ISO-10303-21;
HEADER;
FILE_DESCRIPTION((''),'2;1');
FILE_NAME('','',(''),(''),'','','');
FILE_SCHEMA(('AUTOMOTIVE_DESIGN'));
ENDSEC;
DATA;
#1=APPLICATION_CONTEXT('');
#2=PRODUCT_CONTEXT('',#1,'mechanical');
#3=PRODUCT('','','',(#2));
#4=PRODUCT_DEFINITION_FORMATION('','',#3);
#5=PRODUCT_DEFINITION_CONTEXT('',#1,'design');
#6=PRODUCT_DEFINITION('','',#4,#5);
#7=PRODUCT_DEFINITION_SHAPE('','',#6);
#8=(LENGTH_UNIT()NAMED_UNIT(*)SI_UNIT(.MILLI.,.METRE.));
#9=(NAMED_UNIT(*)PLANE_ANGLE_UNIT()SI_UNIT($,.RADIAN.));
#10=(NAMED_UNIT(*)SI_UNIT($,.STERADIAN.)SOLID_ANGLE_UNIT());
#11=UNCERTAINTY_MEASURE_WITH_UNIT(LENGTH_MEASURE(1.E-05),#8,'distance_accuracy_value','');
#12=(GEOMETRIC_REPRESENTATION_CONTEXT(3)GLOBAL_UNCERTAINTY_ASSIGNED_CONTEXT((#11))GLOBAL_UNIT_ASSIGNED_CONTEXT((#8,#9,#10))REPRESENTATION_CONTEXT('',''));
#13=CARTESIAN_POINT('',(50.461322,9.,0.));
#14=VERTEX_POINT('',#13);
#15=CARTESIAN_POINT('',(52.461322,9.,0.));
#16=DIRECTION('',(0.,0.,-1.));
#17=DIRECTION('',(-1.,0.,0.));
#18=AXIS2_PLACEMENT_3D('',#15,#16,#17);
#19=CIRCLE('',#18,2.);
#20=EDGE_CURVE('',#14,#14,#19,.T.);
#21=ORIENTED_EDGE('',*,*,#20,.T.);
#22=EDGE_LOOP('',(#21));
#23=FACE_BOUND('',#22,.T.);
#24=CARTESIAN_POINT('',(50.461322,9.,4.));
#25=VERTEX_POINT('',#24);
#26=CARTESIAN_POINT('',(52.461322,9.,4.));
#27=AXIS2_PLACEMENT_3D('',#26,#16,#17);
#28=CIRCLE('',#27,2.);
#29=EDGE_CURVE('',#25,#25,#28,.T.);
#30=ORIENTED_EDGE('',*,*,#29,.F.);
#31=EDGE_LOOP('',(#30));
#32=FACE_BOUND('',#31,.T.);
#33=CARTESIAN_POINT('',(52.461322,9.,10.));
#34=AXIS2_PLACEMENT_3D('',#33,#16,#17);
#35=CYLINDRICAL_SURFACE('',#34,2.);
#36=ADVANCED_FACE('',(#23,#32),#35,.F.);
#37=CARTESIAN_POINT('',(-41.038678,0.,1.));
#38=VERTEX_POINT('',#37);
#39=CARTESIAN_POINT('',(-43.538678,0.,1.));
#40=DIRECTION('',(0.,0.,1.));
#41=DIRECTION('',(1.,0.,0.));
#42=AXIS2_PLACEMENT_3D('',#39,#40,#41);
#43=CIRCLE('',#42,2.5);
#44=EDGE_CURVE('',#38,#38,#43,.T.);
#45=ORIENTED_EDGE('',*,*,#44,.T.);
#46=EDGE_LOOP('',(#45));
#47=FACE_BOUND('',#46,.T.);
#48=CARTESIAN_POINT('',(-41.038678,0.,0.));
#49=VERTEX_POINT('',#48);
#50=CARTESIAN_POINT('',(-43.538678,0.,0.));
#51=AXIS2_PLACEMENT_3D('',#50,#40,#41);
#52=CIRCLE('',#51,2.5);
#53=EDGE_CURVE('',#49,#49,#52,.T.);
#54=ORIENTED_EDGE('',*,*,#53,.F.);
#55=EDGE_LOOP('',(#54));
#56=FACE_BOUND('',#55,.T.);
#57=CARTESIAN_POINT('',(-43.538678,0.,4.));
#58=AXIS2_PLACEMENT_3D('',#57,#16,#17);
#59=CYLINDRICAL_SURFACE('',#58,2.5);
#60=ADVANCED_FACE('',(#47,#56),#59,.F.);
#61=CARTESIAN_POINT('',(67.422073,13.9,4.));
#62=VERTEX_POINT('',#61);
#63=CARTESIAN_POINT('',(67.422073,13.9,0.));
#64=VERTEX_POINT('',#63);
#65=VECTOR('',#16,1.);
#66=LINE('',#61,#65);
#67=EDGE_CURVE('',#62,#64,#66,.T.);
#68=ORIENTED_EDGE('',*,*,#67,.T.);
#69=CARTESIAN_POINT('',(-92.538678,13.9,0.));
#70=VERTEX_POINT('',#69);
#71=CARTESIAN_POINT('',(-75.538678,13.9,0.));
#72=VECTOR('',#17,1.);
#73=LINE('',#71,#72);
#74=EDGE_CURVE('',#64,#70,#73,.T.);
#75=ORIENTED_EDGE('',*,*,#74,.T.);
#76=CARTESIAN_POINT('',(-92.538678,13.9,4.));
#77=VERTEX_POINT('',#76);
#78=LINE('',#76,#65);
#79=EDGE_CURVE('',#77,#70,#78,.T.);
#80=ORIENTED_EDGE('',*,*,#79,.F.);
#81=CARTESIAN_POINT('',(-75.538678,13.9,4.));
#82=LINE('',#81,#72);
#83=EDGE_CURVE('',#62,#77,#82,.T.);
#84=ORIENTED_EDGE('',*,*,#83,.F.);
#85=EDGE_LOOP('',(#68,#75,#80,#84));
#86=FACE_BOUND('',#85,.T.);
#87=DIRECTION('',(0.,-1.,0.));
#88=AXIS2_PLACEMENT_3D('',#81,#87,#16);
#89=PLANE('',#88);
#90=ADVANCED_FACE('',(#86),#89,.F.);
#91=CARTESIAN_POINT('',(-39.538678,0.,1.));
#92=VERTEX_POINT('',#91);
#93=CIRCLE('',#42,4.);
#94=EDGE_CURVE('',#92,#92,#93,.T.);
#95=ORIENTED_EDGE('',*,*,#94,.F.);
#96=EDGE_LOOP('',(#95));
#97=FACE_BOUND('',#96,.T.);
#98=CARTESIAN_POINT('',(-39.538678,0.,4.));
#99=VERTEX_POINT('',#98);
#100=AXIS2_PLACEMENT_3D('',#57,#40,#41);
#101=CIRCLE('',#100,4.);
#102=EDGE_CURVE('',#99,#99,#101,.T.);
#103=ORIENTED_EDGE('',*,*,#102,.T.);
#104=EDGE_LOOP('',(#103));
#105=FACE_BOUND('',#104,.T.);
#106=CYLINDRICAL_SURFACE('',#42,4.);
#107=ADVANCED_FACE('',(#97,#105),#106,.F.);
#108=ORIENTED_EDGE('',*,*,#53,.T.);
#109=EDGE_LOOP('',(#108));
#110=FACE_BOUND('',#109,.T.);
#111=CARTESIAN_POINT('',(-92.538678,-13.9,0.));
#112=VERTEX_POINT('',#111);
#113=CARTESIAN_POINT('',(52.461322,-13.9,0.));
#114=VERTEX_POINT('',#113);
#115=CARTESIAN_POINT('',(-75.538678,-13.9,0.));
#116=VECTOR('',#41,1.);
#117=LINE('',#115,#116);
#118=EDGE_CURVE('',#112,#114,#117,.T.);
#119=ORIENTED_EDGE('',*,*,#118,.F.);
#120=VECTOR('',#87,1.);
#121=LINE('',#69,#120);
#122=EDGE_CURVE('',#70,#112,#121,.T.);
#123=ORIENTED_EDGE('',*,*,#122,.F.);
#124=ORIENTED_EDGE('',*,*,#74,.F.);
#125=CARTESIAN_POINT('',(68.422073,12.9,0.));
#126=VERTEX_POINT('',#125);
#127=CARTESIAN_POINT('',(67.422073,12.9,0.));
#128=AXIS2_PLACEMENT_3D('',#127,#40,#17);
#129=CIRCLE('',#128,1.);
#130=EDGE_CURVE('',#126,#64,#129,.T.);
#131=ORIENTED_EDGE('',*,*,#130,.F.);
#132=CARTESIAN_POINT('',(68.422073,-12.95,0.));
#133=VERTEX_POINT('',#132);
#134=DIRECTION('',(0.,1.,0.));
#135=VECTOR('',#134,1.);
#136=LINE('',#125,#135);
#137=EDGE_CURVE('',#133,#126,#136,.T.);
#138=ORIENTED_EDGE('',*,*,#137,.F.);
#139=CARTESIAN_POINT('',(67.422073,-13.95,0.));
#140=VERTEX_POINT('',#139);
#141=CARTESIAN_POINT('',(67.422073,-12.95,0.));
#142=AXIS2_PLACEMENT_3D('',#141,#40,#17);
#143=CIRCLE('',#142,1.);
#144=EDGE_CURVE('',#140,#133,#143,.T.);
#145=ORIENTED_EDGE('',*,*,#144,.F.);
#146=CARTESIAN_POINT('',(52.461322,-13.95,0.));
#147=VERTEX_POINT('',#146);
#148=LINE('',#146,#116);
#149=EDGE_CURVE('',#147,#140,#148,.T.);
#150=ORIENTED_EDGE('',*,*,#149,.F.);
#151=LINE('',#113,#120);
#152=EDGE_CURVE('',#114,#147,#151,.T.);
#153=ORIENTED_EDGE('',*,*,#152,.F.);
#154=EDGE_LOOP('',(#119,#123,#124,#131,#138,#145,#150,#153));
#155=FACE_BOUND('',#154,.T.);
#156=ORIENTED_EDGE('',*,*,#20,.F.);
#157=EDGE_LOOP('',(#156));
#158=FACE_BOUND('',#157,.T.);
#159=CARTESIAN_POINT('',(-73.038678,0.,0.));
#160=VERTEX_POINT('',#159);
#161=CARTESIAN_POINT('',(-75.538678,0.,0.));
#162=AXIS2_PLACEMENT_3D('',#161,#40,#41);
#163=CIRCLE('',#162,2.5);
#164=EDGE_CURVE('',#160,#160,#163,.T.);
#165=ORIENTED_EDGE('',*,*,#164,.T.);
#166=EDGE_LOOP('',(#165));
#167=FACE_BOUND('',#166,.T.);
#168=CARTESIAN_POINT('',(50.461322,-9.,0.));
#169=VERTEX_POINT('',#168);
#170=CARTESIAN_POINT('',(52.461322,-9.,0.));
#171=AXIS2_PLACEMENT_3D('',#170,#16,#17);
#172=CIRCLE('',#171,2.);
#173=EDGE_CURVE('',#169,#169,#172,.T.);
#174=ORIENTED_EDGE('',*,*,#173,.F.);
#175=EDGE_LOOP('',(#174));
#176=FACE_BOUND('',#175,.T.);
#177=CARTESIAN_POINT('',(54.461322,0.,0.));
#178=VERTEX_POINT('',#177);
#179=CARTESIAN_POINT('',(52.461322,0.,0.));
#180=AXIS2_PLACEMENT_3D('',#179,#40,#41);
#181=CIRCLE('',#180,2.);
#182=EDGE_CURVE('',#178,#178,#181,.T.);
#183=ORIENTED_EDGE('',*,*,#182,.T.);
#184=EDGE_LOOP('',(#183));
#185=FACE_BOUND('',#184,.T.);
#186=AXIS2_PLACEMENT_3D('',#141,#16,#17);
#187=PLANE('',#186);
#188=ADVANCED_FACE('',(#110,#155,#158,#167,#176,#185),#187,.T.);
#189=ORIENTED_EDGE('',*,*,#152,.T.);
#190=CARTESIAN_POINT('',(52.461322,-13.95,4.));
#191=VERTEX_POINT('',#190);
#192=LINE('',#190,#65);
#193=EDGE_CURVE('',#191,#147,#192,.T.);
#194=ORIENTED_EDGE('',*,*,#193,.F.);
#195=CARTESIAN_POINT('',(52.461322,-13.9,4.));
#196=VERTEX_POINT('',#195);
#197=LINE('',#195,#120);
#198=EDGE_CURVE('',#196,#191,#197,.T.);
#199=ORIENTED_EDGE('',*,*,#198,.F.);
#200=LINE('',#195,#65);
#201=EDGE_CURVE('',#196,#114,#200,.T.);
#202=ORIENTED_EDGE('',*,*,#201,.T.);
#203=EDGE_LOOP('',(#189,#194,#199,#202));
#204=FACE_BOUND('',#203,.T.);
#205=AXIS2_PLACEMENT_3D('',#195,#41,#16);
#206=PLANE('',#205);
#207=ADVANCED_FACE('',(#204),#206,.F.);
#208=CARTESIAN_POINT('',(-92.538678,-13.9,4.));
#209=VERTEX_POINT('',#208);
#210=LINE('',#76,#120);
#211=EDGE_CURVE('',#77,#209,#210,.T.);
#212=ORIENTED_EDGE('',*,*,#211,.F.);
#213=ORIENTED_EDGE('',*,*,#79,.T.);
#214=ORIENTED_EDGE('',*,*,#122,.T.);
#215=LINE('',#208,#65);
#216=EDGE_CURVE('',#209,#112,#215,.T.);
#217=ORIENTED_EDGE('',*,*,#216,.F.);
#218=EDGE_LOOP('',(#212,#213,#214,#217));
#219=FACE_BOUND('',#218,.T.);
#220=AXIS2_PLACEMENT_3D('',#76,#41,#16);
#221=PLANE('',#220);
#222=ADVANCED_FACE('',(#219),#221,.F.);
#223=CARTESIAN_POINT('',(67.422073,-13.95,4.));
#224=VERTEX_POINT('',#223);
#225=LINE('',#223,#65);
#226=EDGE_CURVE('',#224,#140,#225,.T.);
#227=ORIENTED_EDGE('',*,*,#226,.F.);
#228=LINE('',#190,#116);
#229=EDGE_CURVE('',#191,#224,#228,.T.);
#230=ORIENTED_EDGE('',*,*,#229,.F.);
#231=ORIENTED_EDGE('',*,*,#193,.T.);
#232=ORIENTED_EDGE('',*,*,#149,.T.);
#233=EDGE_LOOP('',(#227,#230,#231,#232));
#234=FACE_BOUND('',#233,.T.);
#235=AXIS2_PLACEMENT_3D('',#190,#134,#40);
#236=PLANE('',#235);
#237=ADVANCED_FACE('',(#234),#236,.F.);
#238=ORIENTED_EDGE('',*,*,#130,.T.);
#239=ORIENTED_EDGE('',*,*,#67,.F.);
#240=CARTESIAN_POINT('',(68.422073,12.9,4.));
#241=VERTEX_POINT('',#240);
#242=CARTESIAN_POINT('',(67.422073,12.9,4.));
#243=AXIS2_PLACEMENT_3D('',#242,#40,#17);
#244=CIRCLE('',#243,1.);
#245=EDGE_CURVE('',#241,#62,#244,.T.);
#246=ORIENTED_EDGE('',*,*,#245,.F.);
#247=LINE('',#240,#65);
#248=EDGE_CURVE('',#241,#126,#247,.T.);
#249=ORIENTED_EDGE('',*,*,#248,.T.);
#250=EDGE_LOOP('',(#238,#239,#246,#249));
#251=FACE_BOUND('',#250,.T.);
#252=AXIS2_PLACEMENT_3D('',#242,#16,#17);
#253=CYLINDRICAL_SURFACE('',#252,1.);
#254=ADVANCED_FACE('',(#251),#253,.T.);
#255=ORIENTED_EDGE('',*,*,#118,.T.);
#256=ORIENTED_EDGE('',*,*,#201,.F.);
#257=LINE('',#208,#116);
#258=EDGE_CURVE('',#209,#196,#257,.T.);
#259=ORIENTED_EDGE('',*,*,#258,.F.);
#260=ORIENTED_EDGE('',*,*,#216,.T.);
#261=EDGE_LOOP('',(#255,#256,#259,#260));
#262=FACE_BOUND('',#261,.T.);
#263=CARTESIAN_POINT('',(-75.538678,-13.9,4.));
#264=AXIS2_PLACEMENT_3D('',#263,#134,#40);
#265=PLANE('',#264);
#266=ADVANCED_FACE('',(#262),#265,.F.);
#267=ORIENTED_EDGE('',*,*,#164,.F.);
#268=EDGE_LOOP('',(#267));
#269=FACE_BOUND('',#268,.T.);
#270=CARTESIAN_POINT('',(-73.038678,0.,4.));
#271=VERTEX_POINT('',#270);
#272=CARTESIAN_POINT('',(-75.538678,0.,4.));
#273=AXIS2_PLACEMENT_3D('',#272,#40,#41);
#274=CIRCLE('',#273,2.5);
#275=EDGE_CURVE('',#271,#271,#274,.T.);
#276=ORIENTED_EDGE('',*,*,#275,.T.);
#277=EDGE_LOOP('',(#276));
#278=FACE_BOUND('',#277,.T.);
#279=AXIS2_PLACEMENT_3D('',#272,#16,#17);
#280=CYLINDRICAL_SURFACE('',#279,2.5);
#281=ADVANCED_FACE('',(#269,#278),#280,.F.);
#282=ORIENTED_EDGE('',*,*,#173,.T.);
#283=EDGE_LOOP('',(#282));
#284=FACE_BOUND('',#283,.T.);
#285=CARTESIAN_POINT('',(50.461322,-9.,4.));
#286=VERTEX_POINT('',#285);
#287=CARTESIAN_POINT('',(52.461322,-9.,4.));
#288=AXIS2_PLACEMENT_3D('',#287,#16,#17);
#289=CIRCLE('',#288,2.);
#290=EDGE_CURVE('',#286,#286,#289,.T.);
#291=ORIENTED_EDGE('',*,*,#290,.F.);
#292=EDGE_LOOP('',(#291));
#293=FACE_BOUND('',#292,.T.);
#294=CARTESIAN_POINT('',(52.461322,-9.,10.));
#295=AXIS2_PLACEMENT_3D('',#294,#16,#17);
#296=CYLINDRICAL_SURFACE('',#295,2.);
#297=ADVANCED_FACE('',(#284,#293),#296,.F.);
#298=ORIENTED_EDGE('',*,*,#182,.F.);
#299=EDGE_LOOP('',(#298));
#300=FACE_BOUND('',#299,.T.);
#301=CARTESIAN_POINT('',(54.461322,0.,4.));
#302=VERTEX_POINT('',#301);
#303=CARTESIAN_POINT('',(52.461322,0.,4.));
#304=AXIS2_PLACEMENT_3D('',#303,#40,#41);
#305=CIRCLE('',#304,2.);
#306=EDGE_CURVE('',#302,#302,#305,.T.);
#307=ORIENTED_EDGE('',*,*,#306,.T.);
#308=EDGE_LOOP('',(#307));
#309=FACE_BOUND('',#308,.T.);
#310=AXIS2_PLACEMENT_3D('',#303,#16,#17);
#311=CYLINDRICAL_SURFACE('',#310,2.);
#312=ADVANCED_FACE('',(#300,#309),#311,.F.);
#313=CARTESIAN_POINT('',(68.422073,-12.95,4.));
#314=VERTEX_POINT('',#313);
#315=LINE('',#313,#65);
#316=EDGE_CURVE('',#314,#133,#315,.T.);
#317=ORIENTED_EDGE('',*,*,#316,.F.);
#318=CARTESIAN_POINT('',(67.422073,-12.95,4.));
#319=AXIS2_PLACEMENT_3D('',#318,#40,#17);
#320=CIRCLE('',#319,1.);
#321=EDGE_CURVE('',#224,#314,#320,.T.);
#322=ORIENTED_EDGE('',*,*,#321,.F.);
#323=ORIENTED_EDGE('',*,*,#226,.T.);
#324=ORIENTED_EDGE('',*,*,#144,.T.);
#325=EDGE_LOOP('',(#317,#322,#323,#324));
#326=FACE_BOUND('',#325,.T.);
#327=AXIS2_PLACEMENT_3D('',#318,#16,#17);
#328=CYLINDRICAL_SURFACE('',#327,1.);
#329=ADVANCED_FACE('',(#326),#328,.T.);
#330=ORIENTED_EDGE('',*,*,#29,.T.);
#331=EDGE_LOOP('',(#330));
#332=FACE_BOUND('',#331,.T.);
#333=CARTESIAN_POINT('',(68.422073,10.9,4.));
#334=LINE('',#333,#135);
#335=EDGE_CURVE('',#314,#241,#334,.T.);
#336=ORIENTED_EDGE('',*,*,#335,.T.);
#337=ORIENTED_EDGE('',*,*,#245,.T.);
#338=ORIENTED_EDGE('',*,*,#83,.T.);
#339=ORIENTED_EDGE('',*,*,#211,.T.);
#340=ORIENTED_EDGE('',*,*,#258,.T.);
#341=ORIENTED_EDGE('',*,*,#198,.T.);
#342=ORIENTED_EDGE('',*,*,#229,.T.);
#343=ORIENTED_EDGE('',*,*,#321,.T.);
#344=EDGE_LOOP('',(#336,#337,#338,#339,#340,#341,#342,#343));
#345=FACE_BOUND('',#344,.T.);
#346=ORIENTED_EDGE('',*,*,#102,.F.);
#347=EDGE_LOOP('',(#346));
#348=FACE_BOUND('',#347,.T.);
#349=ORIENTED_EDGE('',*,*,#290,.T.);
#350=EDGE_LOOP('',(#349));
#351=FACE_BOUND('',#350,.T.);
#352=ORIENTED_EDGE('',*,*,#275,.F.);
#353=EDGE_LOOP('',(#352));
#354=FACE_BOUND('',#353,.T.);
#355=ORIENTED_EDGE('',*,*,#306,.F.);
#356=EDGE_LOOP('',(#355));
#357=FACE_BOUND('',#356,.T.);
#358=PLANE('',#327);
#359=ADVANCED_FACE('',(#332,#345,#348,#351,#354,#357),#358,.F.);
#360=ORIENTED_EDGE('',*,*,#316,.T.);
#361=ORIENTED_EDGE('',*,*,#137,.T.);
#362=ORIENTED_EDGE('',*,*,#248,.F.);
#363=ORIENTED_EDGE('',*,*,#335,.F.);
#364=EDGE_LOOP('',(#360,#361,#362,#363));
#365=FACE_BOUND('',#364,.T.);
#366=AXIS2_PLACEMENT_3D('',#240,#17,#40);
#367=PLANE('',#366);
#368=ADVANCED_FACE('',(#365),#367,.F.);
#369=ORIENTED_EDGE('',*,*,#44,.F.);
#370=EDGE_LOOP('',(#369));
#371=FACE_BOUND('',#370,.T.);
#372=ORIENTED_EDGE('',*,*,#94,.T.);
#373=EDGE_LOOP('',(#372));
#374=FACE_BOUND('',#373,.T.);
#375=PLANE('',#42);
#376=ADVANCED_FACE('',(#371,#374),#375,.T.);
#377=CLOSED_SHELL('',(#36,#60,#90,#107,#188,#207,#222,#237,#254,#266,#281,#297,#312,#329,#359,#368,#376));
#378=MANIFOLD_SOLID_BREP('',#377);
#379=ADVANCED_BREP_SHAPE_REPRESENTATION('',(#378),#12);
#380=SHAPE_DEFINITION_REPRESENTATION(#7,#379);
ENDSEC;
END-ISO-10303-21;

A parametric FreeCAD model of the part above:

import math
import FreeCAD as App
import Part
import Sketcher
from FreeCAD import Vector

doc = App.newDocument("Part")
body = doc.addObject("PartDesign::Body", "Body")

sketch1 = body.newObject("Sketcher::SketchObject", "Sketch")
sketch1.AttachmentSupport = (doc.getObject("XY_Plane"), [""])
sketch1.MapMode = "FlatFace"
sketch1.addGeometry(Part.ArcOfCircle(Part.Circle(Vector(67.422, 12.9, 0), Vector(0, 0, 1), 1), math.radians(0), math.radians(90)), False)
sketch1.addGeometry(Part.LineSegment(Vector(67.422, 13.9, 0), Vector(-92.539, 13.9, 0)), False)
sketch1.addGeometry(Part.LineSegment(Vector(-92.539, 13.9, 0), Vector(-92.539, -13.9, 0)), False)
sketch1.addGeometry(Part.LineSegment(Vector(-92.539, -13.9, 0), Vector(52.461, -13.9, 0)), False)
sketch1.addGeometry(Part.LineSegment(Vector(52.461, -13.9, 0), Vector(52.461, -13.95, 0)), False)
sketch1.addGeometry(Part.LineSegment(Vector(52.461, -13.95, 0), Vector(67.422, -13.95, 0)), False)
sketch1.addGeometry(Part.ArcOfCircle(Part.Circle(Vector(67.422, -12.95, 0), Vector(0, 0, 1), 1), math.radians(-90), math.radians(0)), False)
sketch1.addGeometry(Part.LineSegment(Vector(68.422, -12.95, 0), Vector(68.422, 12.9, 0)), False)
sketch1.addGeometry(Part.Circle(Vector(52.461, 0, 0), Vector(0, 0, 1), 2), False)
sketch1.addGeometry(Part.Circle(Vector(-43.539, 0, 0), Vector(0, 0, 1), 2.5), False)
sketch1.addGeometry(Part.Circle(Vector(-75.539, 0, 0), Vector(0, 0, 1), 2.5), False)
sketch1.addConstraint(Sketcher.Constraint("Tangent", 0, 2, 1, 1))
sketch1.addConstraint(Sketcher.Constraint("Coincident", 1, 2, 2, 1))
sketch1.addConstraint(Sketcher.Constraint("Coincident", 2, 2, 3, 1))
sketch1.addConstraint(Sketcher.Constraint("Coincident", 3, 2, 4, 1))
sketch1.addConstraint(Sketcher.Constraint("Coincident", 4, 2, 5, 1))
sketch1.addConstraint(Sketcher.Constraint("Tangent", 5, 2, 6, 1))
sketch1.addConstraint(Sketcher.Constraint("Tangent", 6, 2, 7, 1))
sketch1.addConstraint(Sketcher.Constraint("Tangent", 7, 2, 0, 1))
sketch1.addConstraint(Sketcher.Constraint("Horizontal", 1))
sketch1.addConstraint(Sketcher.Constraint("Vertical", 2))
sketch1.addConstraint(Sketcher.Constraint("Horizontal", 3))
sketch1.addConstraint(Sketcher.Constraint("Vertical", 4))
sketch1.addConstraint(Sketcher.Constraint("Horizontal", 5))
sketch1.addConstraint(Sketcher.Constraint("Vertical", 7))
sketch1.addConstraint(Sketcher.Constraint("Equal", 0, 6))
sketch1.addConstraint(Sketcher.Constraint("Equal", 9, 10))
sketch1.addConstraint(Sketcher.Constraint("PointOnObject", 8, 3, -1))
sketch1.addConstraint(Sketcher.Constraint("PointOnObject", 9, 3, -1))
sketch1.addConstraint(Sketcher.Constraint("PointOnObject", 10, 3, -1))
sketch1.addConstraint(Sketcher.Constraint("Vertical", 8, 3, 3, 2))
sketch1.addConstraint(Sketcher.Constraint("Diameter", 8, 4.0))
sketch1.addConstraint(Sketcher.Constraint("Diameter", 9, 5.0))
sketch1.addConstraint(Sketcher.Constraint("Radius", 0, 1.0))
sketch1.addConstraint(Sketcher.Constraint("DistanceX", 3, 1, 3, 2, 145.0))
sketch1.addConstraint(Sketcher.Constraint("DistanceY", 2, 2, 2, 1, 27.8))
sketch1.addConstraint(Sketcher.Constraint("DistanceX", 9, 3, 8, 3, 96.0))
sketch1.addConstraint(Sketcher.Constraint("DistanceX", 10, 3, 9, 3, 32.0))
sketch1.addConstraint(Sketcher.Constraint("DistanceY", 4, 2, 4, 1, 0.05))
sketch1.addConstraint(Sketcher.Constraint("DistanceY", -1, 1, 0, 3, 12.9))
sketch1.addConstraint(Sketcher.Constraint("DistanceX", 1, 2, 1, 1, 159.960751))
sketch1.addConstraint(Sketcher.Constraint("DistanceX", -1, 1, 0, 3, 67.422073))
pad1 = body.newObject("PartDesign::Pad", "Pad")
pad1.Profile = sketch1
pad1.Length = 4

sketch2 = body.newObject("Sketcher::SketchObject", "Sketch001")
sketch2.AttachmentSupport = (doc.getObject("XY_Plane"), [""])
sketch2.MapMode = "FlatFace"
sketch2.addGeometry(Part.Circle(Vector(52.5, -9, 0), Vector(0, 0, 1), 2), False)
sketch2.addGeometry(Part.Circle(Vector(52.5, 9, 0), Vector(0, 0, 1), 2), False)
sketch2.addConstraint(Sketcher.Constraint("Equal", 0, 1))
sketch2.addConstraint(Sketcher.Constraint("Symmetric", 0, 3, 1, 3, -1))
sketch2.addConstraint(Sketcher.Constraint("Diameter", 0, 4.0))
sketch2.addConstraint(Sketcher.Constraint("DistanceY", 0, 3, -1, 1, 9.0))
sketch2.addConstraint(Sketcher.Constraint("DistanceX", -1, 1, 0, 3, 52.461322))
pocket1 = body.newObject("PartDesign::Pocket", "Pocket")
pocket1.Profile = sketch2
pocket1.Length = 10
pocket1.Reversed = True

sketch3 = body.newObject("Sketcher::SketchObject", "Sketch002")
sketch3.AttachmentSupport = (doc.getObject("XY_Plane"), [""])
sketch3.MapMode = "FlatFace"
sketch3.AttachmentOffset = App.Placement(Vector(0, 0, 4), App.Rotation())
sketch3.addGeometry(Part.Circle(Vector(-43.5, 0, 0), Vector(0, 0, 1), 4), False)
sketch3.addConstraint(Sketcher.Constraint("PointOnObject", 0, 3, -1))
sketch3.addConstraint(Sketcher.Constraint("Diameter", 0, 8.0))
sketch3.addConstraint(Sketcher.Constraint("DistanceX", 0, 3, -1, 1, 43.538678))
pocket2 = body.newObject("PartDesign::Pocket", "Pocket001")
pocket2.Profile = sketch3
pocket2.Length = 3

doc.recompute()
